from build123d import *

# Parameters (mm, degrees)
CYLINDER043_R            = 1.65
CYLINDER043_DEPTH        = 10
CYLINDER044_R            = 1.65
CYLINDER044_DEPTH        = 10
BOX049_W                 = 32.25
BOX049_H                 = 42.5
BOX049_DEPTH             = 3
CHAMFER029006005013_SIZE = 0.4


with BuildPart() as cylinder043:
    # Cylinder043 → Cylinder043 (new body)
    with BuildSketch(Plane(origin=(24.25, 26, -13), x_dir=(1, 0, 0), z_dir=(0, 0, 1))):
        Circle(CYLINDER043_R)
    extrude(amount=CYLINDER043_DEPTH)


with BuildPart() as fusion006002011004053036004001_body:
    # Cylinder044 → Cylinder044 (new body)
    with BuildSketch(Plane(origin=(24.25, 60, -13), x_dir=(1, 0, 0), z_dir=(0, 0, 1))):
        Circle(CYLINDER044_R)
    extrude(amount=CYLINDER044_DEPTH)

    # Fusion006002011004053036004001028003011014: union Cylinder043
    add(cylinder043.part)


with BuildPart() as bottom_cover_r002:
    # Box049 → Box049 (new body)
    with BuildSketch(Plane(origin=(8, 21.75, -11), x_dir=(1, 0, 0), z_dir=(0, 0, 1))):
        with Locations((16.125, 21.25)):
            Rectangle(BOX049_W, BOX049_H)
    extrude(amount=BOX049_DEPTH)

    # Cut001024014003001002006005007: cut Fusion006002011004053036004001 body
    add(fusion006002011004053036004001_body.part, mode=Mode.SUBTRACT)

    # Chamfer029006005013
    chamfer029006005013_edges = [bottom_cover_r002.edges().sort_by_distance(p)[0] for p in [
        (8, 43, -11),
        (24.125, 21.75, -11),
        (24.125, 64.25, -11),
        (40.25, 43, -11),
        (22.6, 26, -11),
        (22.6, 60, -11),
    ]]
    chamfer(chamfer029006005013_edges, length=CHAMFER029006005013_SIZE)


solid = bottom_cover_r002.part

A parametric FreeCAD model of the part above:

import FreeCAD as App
import Part
import Sketcher
from FreeCAD import Vector


def edges_at(feature, points):
    """Names of the edges that pass closest to the given points."""
    edges = feature.Shape.Edges
    near = lambda p: min(range(len(edges)), key=lambda i: edges[i].distToShape(Part.Vertex(*p))[0])
    return sorted({f"Edge{near(p) + 1}" for p in points})

doc = App.newDocument("Part")
body = doc.addObject("PartDesign::Body", "Body")

# Sketch on XY plane
sketch1 = doc.addObject("Sketcher::SketchObject", "Sketch")
body.addObject(sketch1)
sketch1.AttachmentSupport = (doc.XY_Plane, [""])
sketch1.MapMode = "FlatFace"
sketch1.AttachmentOffset = App.Placement(Vector(0, 0, -13), App.Rotation())
sketch1.addGeometry(Part.Circle(Vector(24.2, 26, 0), Vector(0, 0, 1), 1.6), False)
sketch1.addConstraint([
    Sketcher.Constraint("Diameter", 0, 3.3),
    Sketcher.Constraint("DistanceY", -1, 1, 0, 3, 26.0),
    Sketcher.Constraint("DistanceX", -1, 1, 0, 3, 24.25),
])
pad1 = doc.addObject("PartDesign::Pad", "Pad")
body.addObject(pad1)
pad1.Profile = sketch1
pad1.Length = 10
body2 = doc.addObject("PartDesign::Body", "Body001")
body2.AllowCompound = True

# Sketch on XY plane
sketch2 = doc.addObject("Sketcher::SketchObject", "Sketch001")
body2.addObject(sketch2)
sketch2.AttachmentSupport = (doc.getObject("XY_Plane001"), [""])
sketch2.MapMode = "FlatFace"
sketch2.AttachmentOffset = App.Placement(Vector(0, 0, -13), App.Rotation())
sketch2.addGeometry(Part.Circle(Vector(24.2, 60, 0), Vector(0, 0, 1), 1.6), False)
sketch2.addConstraint([
    Sketcher.Constraint("Diameter", 0, 3.3),
    Sketcher.Constraint("DistanceY", -1, 1, 0, 3, 60.0),
    Sketcher.Constraint("DistanceX", -1, 1, 0, 3, 24.25),
])
pad2 = doc.addObject("PartDesign::Pad", "Pad001")
body2.addObject(pad2)
pad2.Profile = sketch2
pad2.Length = 10
doc.recompute()

boolean = doc.addObject("PartDesign::Boolean", "Boolean")
body2.addObject(boolean)
boolean.Type = "Fuse"
boolean.addObjects([body])
body3 = doc.addObject("PartDesign::Body", "Body002")

# Sketch on XY plane
sketch3 = doc.addObject("Sketcher::SketchObject", "Sketch002")
body3.addObject(sketch3)
sketch3.AttachmentSupport = (doc.getObject("XY_Plane002"), [""])
sketch3.MapMode = "FlatFace"
sketch3.AttachmentOffset = App.Placement(Vector(0, 0, -11), App.Rotation())
sketch3.addGeometry([
    Part.LineSegment(Vector(8, 64, 0), Vector(8, 22, 0)),
    Part.LineSegment(Vector(8, 22, 0), Vector(40, 22, 0)),
    Part.LineSegment(Vector(40, 22, 0), Vector(40, 64, 0)),
    Part.LineSegment(Vector(40, 64, 0), Vector(8, 64, 0)),
], False)
sketch3.addConstraint([
    Sketcher.Constraint("Coincident", 0, 2, 1, 1),
    Sketcher.Constraint("Coincident", 1, 2, 2, 1),
    Sketcher.Constraint("Coincident", 2, 2, 3, 1),
    Sketcher.Constraint("Coincident", 3, 2, 0, 1),
    Sketcher.Constraint("Vertical", 0),
    Sketcher.Constraint("Horizontal", 1),
    Sketcher.Constraint("Vertical", 2),
    Sketcher.Constraint("Horizontal", 3),
    Sketcher.Constraint("DistanceY", 0, 2, 0, 1, 42.5),
    Sketcher.Constraint("DistanceX", -1, 1, 0, 2, 8.0),
    Sketcher.Constraint("DistanceX", 1, 1, 1, 2, 32.25),
    Sketcher.Constraint("DistanceY", -1, 1, 0, 2, 21.75),
])
pad3 = doc.addObject("PartDesign::Pad", "Pad002")
body3.addObject(pad3)
pad3.Profile = sketch3
pad3.Length = 3
doc.recompute()

boolean2 = doc.addObject("PartDesign::Boolean", "Boolean001")
body3.addObject(boolean2)
boolean2.Type = "Cut"
boolean2.addObjects([body2])
doc.recompute()

chamfer = doc.addObject("PartDesign::Chamfer", "Chamfer")
body3.addObject(chamfer)
chamfer.Base = (boolean2, edges_at(boolean2, [
    (8, 43, -11),
    (24.125, 21.75, -11),
    (24.125, 64.25, -11),
    (40.25, 43, -11),
    (22.6, 26, -11),
    (22.6, 60, -11),
]))
chamfer.Size = 0.4

doc.recompute()
